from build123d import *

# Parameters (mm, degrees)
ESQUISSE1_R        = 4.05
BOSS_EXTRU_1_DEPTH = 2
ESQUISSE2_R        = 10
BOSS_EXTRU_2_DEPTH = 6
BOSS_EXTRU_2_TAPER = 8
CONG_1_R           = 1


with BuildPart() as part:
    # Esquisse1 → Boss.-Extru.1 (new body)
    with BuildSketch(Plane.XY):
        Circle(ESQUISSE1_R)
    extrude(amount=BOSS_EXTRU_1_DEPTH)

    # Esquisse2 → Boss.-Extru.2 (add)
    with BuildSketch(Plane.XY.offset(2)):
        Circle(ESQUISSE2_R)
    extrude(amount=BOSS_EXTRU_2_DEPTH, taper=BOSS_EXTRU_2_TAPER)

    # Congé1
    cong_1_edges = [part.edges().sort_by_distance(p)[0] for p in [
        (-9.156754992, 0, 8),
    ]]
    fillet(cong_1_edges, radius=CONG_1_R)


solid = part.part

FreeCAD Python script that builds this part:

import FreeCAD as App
import Part
import Sketcher

V = App.Vector
Q = App.Units.Quantity


def edges_at(feature, points):
    """Names of the edges that pass closest to the given points."""
    edges = feature.Shape.Edges
    near = lambda p: min(range(len(edges)), key=lambda i: edges[i].distToShape(Part.Vertex(*p))[0])
    return sorted({f"Edge{near(p) + 1}" for p in points})

doc = App.newDocument("Part")
body = doc.addObject("PartDesign::Body", "Body")

# Sketch on XY plane
sketch1 = body.newObject("Sketcher::SketchObject", "Sketch")
sketch1.AttachmentSupport = (doc.getObject("XY_Plane"), [""])
sketch1.MapMode = "FlatFace"
sketch1.addGeometry(Part.Circle(V(0, 0, 0), V(0, 0, 1), 4.05), False)
sketch1.addConstraint([
    Sketcher.Constraint("Coincident", 0, 3, -1, 1),
    Sketcher.Constraint("Diameter", 0, Q("8.1 mm")),
])
pad1 = body.newObject("PartDesign::Pad", "Pad")
pad1.Profile = sketch1
pad1.Length = 2

# Sketch on XY plane
sketch2 = body.newObject("Sketcher::SketchObject", "Sketch001")
sketch2.AttachmentSupport = (doc.getObject("XY_Plane"), [""])
sketch2.MapMode = "FlatFace"
sketch2.AttachmentOffset = App.Placement(V(0, 0, 2), App.Rotation())
sketch2.addGeometry(Part.Circle(V(0, 0, 0), V(0, 0, 1), 10), False)
sketch2.addConstraint([
    Sketcher.Constraint("Coincident", 0, 3, -1, 1),
    Sketcher.Constraint("Diameter", 0, Q("20 mm")),
])
pad2 = body.newObject("PartDesign::Pad", "Pad001")
pad2.Profile = sketch2
pad2.Length = 6
pad2.TaperAngle = -8
doc.recompute()

fillet = body.newObject("PartDesign::Fillet", "Fillet")
fillet.Base = (pad2, edges_at(pad2, [(-9.157, 0, 8)]))
fillet.Radius = 1

doc.recompute()
